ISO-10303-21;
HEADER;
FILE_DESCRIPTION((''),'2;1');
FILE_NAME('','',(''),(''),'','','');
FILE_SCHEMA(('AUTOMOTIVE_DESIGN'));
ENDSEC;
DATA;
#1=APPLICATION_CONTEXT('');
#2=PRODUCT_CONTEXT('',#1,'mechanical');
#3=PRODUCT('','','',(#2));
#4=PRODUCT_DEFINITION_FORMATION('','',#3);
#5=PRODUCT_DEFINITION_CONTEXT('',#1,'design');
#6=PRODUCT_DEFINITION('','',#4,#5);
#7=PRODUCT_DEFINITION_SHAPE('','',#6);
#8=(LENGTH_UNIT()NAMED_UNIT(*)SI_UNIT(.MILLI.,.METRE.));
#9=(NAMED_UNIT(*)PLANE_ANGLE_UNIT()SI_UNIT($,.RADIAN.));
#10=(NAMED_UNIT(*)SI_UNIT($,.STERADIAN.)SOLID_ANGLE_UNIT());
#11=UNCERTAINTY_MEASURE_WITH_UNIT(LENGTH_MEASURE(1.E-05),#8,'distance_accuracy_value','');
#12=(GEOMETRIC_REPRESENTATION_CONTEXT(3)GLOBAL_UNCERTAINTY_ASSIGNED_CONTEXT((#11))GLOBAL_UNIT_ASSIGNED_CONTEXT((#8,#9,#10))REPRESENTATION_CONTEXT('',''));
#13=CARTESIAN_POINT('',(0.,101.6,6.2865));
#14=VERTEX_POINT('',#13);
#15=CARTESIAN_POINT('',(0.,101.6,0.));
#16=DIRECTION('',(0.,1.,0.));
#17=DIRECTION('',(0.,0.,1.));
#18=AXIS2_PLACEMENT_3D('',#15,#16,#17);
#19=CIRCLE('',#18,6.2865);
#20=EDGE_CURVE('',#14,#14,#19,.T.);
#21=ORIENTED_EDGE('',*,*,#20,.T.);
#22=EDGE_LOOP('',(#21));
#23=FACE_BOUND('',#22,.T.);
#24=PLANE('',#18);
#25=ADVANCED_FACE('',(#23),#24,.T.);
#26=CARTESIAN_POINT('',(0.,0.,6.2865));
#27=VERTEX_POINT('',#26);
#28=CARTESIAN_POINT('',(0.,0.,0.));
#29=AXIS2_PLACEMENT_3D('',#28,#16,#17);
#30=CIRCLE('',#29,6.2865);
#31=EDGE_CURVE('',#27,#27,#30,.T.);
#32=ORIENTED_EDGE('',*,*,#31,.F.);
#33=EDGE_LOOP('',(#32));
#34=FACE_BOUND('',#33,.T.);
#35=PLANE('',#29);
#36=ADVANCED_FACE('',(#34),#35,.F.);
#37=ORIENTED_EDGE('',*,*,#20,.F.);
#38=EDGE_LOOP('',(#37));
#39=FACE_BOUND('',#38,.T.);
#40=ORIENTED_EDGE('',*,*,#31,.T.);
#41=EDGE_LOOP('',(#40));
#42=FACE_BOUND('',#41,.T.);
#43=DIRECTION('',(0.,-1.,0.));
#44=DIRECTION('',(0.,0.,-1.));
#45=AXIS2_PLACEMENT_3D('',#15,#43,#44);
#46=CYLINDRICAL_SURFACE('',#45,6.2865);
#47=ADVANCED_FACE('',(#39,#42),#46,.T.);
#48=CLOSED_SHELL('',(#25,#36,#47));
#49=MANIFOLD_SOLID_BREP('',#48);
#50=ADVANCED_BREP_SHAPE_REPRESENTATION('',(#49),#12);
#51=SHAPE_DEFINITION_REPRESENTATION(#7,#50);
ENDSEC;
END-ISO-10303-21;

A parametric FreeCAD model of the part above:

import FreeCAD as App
import Part
import Sketcher

V = App.Vector
Q = App.Units.Quantity

doc = App.newDocument("Part")
params = doc.addObject("Spreadsheet::Sheet", "Params")
for row, (alias, value) in enumerate([
    ("sketch1_diameter", "0.495 in"),
    ("pad1_length", "4 in"),
], start=1):
    params.set(f"A{row}", alias)
    params.set(f"B{row}", "=" + value)
    params.setAlias(f"B{row}", alias)

body = doc.addObject("PartDesign::Body", "Body")

# Sketch on XZ plane
sketch1 = body.newObject("Sketcher::SketchObject", "Sketch")
sketch1.AttachmentSupport = (doc.getObject("XZ_Plane"), [""])
sketch1.MapMode = "FlatFace"
sketch1.addGeometry(Part.Circle(V(0, 0, 0), V(0, 0, 1), 6), False)
sketch1.addConstraint(Sketcher.Constraint("Coincident", 0, 3, -1, 1))
sketch1.addConstraint(Sketcher.Constraint("Diameter", 0, Q("0.495 in")))
sketch1.setExpression("Constraints[1]", "Params.sketch1_diameter")
pad1 = body.newObject("PartDesign::Pad", "Pad")
pad1.Profile = sketch1
pad1.setExpression("Length", "Params.pad1_length")
pad1.Reversed = True

doc.recompute()
